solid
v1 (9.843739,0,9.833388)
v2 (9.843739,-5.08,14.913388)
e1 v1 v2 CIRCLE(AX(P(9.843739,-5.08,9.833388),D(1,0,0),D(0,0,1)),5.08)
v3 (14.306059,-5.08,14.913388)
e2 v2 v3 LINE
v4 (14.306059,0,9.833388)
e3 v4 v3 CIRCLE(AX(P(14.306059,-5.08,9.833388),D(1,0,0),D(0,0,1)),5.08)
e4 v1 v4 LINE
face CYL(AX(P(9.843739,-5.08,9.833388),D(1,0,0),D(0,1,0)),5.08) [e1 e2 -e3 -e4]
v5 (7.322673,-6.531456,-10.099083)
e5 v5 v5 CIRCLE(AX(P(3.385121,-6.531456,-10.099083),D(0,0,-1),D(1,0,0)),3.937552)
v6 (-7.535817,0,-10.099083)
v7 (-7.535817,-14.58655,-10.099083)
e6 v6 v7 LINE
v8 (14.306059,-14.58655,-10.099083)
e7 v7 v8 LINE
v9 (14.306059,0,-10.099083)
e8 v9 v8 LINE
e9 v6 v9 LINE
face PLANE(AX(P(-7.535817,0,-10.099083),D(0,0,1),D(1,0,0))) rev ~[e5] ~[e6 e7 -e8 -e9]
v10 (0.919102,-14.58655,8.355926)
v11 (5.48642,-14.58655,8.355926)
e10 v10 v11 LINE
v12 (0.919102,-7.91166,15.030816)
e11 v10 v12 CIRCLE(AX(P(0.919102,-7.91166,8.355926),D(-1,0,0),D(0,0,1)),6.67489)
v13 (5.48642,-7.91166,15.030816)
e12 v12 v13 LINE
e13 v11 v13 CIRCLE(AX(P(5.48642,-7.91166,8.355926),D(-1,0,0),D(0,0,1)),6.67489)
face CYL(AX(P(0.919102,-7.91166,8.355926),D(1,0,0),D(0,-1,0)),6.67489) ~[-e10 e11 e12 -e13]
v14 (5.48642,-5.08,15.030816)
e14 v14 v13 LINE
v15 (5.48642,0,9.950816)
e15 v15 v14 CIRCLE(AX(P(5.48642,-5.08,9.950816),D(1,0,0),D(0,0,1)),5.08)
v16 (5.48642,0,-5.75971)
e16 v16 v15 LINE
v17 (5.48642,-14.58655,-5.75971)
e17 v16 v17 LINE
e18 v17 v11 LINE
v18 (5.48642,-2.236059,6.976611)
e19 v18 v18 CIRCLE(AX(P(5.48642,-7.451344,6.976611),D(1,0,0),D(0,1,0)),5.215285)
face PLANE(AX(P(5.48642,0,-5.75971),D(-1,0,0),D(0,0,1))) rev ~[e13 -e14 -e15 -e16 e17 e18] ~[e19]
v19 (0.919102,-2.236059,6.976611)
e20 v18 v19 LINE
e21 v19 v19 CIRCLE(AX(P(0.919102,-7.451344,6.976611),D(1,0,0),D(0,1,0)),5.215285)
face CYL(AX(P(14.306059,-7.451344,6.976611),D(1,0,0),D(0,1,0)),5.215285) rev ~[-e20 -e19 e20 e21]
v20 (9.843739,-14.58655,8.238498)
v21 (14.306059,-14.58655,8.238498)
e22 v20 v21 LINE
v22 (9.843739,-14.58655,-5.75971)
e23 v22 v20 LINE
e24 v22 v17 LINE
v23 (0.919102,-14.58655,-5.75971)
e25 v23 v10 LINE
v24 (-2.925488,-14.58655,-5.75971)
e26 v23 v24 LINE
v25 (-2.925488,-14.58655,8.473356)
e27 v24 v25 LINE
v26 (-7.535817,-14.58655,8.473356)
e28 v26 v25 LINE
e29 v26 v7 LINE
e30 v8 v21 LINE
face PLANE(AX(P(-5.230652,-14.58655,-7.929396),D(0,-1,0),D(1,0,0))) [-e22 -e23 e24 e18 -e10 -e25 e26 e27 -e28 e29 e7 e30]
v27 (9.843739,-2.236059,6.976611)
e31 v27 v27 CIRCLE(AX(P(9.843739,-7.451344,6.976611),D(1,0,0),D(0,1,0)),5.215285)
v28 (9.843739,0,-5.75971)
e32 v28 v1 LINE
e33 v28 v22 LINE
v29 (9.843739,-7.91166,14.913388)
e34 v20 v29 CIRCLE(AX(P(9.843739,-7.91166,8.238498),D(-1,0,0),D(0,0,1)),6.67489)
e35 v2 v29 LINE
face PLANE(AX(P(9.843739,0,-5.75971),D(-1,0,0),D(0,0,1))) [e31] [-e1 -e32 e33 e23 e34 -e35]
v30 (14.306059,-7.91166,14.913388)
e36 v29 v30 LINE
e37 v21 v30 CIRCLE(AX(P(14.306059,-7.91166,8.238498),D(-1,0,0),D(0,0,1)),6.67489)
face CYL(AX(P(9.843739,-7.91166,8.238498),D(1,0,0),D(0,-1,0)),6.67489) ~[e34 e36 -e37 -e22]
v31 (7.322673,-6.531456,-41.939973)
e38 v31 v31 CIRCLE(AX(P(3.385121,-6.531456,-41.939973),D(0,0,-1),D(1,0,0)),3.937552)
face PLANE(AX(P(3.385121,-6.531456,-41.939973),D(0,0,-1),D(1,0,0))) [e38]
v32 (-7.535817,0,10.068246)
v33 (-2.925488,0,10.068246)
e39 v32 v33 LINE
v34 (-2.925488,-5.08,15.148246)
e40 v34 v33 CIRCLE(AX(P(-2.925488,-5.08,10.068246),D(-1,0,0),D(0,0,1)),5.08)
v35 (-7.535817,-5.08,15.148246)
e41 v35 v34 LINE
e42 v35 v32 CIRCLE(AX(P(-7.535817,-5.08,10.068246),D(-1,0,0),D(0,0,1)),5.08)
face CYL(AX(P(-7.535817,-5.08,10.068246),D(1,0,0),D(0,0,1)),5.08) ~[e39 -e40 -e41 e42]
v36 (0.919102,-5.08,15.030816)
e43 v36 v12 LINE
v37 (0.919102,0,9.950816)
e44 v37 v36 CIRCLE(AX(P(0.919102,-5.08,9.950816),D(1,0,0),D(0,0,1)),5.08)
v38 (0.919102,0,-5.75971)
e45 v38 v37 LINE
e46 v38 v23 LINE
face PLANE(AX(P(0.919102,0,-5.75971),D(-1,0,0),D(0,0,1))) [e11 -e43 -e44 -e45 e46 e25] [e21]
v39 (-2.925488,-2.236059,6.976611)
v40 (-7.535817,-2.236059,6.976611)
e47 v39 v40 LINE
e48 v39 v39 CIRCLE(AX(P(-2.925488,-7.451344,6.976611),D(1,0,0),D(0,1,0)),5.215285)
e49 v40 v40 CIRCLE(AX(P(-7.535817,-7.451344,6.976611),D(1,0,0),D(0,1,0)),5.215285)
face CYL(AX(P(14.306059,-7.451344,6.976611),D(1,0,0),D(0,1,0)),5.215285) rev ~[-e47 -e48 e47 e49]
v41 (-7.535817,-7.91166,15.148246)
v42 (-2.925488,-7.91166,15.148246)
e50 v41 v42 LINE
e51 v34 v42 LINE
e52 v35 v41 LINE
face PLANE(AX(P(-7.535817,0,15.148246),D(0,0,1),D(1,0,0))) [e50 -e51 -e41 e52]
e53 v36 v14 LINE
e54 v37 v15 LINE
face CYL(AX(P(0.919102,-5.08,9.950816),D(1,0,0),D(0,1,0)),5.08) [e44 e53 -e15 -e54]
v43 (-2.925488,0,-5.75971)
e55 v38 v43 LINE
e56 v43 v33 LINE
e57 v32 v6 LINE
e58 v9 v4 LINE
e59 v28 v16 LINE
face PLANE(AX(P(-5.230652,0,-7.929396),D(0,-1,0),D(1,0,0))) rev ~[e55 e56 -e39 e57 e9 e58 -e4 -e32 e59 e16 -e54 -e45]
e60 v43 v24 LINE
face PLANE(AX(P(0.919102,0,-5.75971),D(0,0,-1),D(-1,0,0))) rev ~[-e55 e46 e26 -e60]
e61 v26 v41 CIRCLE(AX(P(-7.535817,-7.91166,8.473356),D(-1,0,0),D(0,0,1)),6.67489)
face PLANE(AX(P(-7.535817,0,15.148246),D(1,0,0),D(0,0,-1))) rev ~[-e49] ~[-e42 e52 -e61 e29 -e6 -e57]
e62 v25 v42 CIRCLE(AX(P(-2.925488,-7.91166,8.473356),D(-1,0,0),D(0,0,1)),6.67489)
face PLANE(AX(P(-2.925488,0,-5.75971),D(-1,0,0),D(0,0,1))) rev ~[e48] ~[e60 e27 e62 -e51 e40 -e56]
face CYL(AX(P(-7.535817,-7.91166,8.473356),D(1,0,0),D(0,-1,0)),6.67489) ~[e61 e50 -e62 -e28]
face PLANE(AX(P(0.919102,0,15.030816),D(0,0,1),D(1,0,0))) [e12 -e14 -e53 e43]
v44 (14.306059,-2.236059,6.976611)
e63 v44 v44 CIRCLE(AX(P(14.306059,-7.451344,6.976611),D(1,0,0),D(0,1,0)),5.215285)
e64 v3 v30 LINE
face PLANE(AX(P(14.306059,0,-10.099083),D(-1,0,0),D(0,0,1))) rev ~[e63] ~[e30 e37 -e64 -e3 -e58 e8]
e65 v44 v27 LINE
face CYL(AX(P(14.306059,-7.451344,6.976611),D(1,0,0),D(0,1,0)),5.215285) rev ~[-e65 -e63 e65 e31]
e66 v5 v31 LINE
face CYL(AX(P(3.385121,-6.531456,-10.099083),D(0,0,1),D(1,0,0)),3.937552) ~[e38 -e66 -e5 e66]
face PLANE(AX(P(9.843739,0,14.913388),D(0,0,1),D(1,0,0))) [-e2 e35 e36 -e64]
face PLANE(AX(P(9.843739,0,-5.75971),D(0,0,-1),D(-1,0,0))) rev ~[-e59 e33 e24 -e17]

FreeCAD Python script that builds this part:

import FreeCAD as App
import Part
import Sketcher

V = App.Vector
Q = App.Units.Quantity


def edges_at(feature, points):
    """Names of the edges that pass closest to the given points."""
    edges = feature.Shape.Edges
    near = lambda p: min(range(len(edges)), key=lambda i: edges[i].distToShape(Part.Vertex(*p))[0])
    return sorted({f"Edge{near(p) + 1}" for p in points})


def add_polygon(sketch, points):
    """Adds a closed chain of lines whose ends are joined by coincident constraints."""
    first, n = sketch.GeometryCount, len(points)
    for a, b in zip(points, points[1:] + points[:1]):
        sketch.addGeometry(Part.LineSegment(App.Vector(*a, 0), App.Vector(*b, 0)), False)
    for i in range(n):
        sketch.addConstraint(Sketcher.Constraint("Coincident", first + i, 2, first + (i + 1) % n, 1))

doc = App.newDocument("Part")
body = doc.addObject("PartDesign::Body", "Body")

sketch1 = body.newObject("Sketcher::SketchObject", "Sketch")
sketch1.AttachmentSupport = (doc.getObject("XZ_Plane"), [""])
sketch1.MapMode = "FlatFace"
add_polygon(sketch1, [(-7.5, -10.1), (14.3, -10.1), (14.3, 14.9), (9.8, 14.9), (9.8, -5.8), (5.5, -5.8), (5.5, 15), (0.9, 15), (0.9, -5.8), (-2.9, -5.8), (-2.9, 15.1), (-7.5, 15.1)])
sketch1.addConstraint([
    Sketcher.Constraint("Horizontal", 0),
    Sketcher.Constraint("Vertical", 1),
    Sketcher.Constraint("Horizontal", 2),
    Sketcher.Constraint("Vertical", 3),
    Sketcher.Constraint("Horizontal", 4),
    Sketcher.Constraint("Vertical", 5),
    Sketcher.Constraint("Horizontal", 6),
    Sketcher.Constraint("Vertical", 7),
    Sketcher.Constraint("Horizontal", 8),
    Sketcher.Constraint("Vertical", 9),
    Sketcher.Constraint("Horizontal", 10),
    Sketcher.Constraint("Vertical", 11),
    Sketcher.Constraint("Horizontal", 4, 2, 7, 2),
    Sketcher.Constraint("DistanceX", 2, 2, 2, 1, 4.46232),
    Sketcher.Constraint("DistanceX", 4, 2, 4, 1, 4.357319),
    Sketcher.Constraint("DistanceX", 8, 2, 8, 1, 3.84459),
    Sketcher.Constraint("DistanceX", 10, 2, 10, 1, 4.610329),
    Sketcher.Constraint("DistanceY", 1, 1, 1, 2, 25.012471),
    Sketcher.Constraint("DistanceY", 11, 2, 11, 1, 25.247329),
    Sketcher.Constraint("DistanceY", 0, 2, 5, 2, 25.129899),
    Sketcher.Constraint("DistanceX", 0, 1, 0, 2, 21.841876),
    Sketcher.Constraint("DistanceY", 3, 2, 3, 1, 20.673097),
    Sketcher.Constraint("DistanceX", -1, 1, 0, 2, 14.306059),
    Sketcher.Constraint("DistanceY", 3, 2, -1, 1, 5.75971),
])
pad1 = body.newObject("PartDesign::Pad", "Pad")
pad1.Profile = sketch1
pad1.Length = 14.58655

sketch2 = body.newObject("Sketcher::SketchObject", "Sketch001")
sketch2.AttachmentSupport = (doc.getObject("YZ_Plane"), [""])
sketch2.MapMode = "FlatFace"
sketch2.AttachmentOffset = App.Placement(V(0, 0, 14.306059), App.Rotation())
sketch2.addGeometry(Part.Circle(V(-7, 7, 0), V(0, 0, 1), 5), False)
sketch2.addConstraint([
    Sketcher.Constraint("Diameter", 0, 10.430571),
    Sketcher.Constraint("DistanceY", -1, 1, 0, 3, 6.976611),
    Sketcher.Constraint("DistanceX", 0, 3, -1, 1, 7.451344),
])
pocket1 = body.newObject("PartDesign::Pocket", "Pocket")
pocket1.Profile = sketch2
pocket1.Length = 26.42732
doc.recompute()

fillet = body.newObject("PartDesign::Fillet", "Fillet")
fillet.Base = (pocket1, edges_at(pocket1, [(-5.231, -14.587, 15.148), (3.203, -14.587, 15.031), (12.075, -14.587, 14.913)]))
fillet.Radius = 6.67489
doc.recompute()

fillet2 = body.newObject("PartDesign::Fillet", "Fillet001")
fillet2.Base = (fillet, edges_at(fillet, [(12.075, 0, 14.913), (3.203, 0, 15.031), (-5.231, 0, 15.148)]))
fillet2.Radius = Q("0.2 in")

sketch3 = body.newObject("Sketcher::SketchObject", "Sketch002")
sketch3.AttachmentSupport = (doc.getObject("XY_Plane"), [""])
sketch3.MapMode = "FlatFace"
sketch3.AttachmentOffset = App.Placement(V(0, 0, -10.099083), App.Rotation())
sketch3.addGeometry(Part.Circle(V(3.4, -6.5, 0), V(0, 0, 1), 3.9), False)
sketch3.addConstraint([
    Sketcher.Constraint("Diameter", 0, 7.875103),
    Sketcher.Constraint("DistanceX", -1, 1, 0, 3, 3.385121),
    Sketcher.Constraint("DistanceY", 0, 3, -1, 1, 6.531456),
])
pad2 = body.newObject("PartDesign::Pad", "Pad001")
pad2.Profile = sketch3
pad2.Length = 31.84089
pad2.Reversed = True

doc.recompute()
